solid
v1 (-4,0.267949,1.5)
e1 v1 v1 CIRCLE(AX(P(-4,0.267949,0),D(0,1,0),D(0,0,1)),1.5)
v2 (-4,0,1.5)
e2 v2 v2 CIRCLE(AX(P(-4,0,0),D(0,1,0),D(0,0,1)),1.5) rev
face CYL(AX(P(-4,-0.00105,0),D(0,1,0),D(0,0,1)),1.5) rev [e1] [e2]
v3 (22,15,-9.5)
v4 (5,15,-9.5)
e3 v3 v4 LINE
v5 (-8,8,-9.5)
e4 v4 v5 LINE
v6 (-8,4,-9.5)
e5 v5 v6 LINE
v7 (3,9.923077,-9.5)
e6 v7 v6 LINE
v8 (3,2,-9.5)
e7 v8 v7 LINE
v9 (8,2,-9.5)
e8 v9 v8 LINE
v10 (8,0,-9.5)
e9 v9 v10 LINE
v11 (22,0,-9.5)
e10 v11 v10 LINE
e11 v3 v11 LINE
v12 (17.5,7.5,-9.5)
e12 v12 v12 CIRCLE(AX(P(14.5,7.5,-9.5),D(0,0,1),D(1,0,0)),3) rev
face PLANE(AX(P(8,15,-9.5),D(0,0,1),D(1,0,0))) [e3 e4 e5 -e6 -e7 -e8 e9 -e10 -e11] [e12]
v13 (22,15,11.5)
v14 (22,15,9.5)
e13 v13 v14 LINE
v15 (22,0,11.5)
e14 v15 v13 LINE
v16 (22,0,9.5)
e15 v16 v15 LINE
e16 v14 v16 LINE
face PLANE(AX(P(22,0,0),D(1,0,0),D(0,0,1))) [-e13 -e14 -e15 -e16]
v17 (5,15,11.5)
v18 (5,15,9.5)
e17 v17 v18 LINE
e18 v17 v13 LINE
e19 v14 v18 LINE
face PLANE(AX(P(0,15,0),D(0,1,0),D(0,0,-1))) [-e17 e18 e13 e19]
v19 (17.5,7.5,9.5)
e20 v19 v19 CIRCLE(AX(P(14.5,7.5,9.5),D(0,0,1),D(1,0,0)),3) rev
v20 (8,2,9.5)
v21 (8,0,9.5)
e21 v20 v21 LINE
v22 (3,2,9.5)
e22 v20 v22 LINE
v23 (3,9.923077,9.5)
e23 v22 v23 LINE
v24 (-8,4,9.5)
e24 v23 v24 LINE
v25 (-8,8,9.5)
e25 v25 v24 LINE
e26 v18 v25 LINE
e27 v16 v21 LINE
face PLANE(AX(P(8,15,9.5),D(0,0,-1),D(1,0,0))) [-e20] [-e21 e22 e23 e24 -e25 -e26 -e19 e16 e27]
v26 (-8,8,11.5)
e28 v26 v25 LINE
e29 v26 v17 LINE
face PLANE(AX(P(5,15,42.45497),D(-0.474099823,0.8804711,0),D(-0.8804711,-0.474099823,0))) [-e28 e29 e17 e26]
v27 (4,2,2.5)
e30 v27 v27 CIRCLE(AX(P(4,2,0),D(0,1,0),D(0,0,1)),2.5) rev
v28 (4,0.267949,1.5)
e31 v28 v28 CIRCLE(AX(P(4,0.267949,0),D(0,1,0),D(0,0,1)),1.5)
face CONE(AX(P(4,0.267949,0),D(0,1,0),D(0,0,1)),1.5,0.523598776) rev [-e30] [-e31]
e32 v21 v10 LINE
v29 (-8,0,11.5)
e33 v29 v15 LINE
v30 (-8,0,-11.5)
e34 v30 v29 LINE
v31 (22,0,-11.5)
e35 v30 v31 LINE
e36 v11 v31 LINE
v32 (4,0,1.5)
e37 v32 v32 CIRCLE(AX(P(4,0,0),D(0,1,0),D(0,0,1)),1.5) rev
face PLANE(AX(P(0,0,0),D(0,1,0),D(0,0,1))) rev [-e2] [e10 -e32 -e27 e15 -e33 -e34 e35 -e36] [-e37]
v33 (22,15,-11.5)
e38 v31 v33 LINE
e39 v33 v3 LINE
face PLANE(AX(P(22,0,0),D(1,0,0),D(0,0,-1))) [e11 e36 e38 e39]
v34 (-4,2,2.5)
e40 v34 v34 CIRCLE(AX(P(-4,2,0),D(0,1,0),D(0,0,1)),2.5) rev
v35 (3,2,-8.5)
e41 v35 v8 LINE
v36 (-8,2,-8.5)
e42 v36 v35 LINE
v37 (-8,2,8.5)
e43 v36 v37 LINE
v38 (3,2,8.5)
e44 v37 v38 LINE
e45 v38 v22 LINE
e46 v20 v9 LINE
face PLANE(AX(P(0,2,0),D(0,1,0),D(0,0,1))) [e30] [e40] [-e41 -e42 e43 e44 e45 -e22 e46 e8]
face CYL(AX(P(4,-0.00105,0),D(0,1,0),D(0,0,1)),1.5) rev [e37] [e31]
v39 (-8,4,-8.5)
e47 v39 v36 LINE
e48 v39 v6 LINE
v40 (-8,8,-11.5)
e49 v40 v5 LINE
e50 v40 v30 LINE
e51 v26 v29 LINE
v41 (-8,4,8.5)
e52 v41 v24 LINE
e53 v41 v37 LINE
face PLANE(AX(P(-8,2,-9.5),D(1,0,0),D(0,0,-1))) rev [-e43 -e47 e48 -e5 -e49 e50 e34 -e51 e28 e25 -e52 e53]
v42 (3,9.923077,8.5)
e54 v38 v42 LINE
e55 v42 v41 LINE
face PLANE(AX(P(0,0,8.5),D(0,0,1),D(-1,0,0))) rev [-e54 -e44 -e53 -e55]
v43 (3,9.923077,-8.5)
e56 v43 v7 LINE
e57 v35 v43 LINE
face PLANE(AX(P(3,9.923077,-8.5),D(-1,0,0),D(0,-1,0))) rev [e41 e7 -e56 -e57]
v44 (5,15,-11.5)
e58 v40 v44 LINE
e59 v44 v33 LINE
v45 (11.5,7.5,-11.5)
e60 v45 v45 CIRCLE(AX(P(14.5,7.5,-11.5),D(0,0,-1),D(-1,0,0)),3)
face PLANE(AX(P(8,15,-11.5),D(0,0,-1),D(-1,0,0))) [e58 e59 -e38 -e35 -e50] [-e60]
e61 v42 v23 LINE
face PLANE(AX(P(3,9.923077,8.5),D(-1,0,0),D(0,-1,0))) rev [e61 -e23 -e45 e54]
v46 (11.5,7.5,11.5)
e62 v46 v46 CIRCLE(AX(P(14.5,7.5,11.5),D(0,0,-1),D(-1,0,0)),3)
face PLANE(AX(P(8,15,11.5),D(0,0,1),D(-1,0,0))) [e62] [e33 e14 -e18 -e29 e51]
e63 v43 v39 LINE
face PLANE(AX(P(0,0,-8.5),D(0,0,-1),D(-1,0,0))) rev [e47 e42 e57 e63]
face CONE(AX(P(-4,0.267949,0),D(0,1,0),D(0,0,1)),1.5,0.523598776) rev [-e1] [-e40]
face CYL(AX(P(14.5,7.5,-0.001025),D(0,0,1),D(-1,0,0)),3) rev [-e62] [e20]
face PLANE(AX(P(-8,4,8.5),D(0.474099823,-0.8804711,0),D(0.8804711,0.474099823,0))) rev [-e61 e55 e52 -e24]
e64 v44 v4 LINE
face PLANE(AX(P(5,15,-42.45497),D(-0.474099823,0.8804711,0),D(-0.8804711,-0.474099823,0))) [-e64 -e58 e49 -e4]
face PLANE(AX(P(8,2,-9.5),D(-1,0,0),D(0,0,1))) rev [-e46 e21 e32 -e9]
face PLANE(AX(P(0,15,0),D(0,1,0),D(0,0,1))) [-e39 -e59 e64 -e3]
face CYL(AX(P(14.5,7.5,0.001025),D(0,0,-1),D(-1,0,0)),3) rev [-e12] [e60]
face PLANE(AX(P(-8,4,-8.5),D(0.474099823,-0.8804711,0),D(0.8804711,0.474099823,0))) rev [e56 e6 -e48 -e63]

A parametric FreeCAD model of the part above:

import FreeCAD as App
import Part
import Sketcher
from FreeCAD import Vector
Q = App.Units.Quantity


def edges_at(feature, points):
    """Names of the edges that pass closest to the given points."""
    edges = feature.Shape.Edges
    near = lambda p: min(range(len(edges)), key=lambda i: edges[i].distToShape(Part.Vertex(*p))[0])
    return sorted({f"Edge{near(p) + 1}" for p in points})

doc = App.newDocument("Part")
body = doc.addObject("PartDesign::Body", "Body")

# Sketch on XZ plane
sketch1 = body.newObject("Sketcher::SketchObject", "Sketch")
sketch1.AttachmentSupport = (doc.getObject("XZ_Plane"), [""])
sketch1.MapMode = "FlatFace"
sketch1.addGeometry(Part.LineSegment(Vector(-8, -10, 0), Vector(-8, 0, 0)), False)
sketch1.addGeometry(Part.LineSegment(Vector(-8, 0, 0), Vector(8, 0, 0)), False)
sketch1.addGeometry(Part.LineSegment(Vector(8, 0, 0), Vector(8, -10, 0)), False)
sketch1.addGeometry(Part.LineSegment(Vector(8, -10, 0), Vector(-8, -10, 0)), False)
sketch1.addConstraint(Sketcher.Constraint("Coincident", 0, 2, 1, 1))
sketch1.addConstraint(Sketcher.Constraint("Coincident", 1, 2, 2, 1))
sketch1.addConstraint(Sketcher.Constraint("Coincident", 2, 2, 3, 1))
sketch1.addConstraint(Sketcher.Constraint("Coincident", 3, 2, 0, 1))
sketch1.addConstraint(Sketcher.Constraint("Vertical", 0))
sketch1.addConstraint(Sketcher.Constraint("Horizontal", 1))
sketch1.addConstraint(Sketcher.Constraint("Vertical", 2))
sketch1.addConstraint(Sketcher.Constraint("Horizontal", 3))
sketch1.addConstraint(Sketcher.Constraint("Symmetric", 0, 2, 1, 2, -1, 1))
sketch1.addConstraint(Sketcher.Constraint("DistanceX", 1, 1, 1, 2, Q("16 mm")))
sketch1.addConstraint(Sketcher.Constraint("DistanceY", 0, 1, 0, 2, Q("9.5 mm")))
pad1 = body.newObject("PartDesign::Pad", "Pad")
pad1.Profile = sketch1
pad1.Length = 2
pad1.Reversed = True

# Sketch on XZ plane
sketch2 = body.newObject("Sketcher::SketchObject", "Sketch001")
sketch2.AttachmentSupport = (doc.getObject("XZ_Plane"), [""])
sketch2.MapMode = "FlatFace"
sketch2.addGeometry(Part.LineSegment(Vector(-8, -9.5, 0), Vector(-8, -11.5, 0)), False)
sketch2.addGeometry(Part.LineSegment(Vector(-8, -11.5, 0), Vector(8, -11.5, 0)), False)
sketch2.addGeometry(Part.LineSegment(Vector(8, -11.5, 0), Vector(8, -9.5, 0)), False)
sketch2.addGeometry(Part.LineSegment(Vector(8, -9.5, 0), Vector(-8, -9.5, 0)), False)
sketch2.addConstraint(Sketcher.Constraint("Coincident", 0, 2, 1, 1))
sketch2.addConstraint(Sketcher.Constraint("Coincident", 1, 2, 2, 1))
sketch2.addConstraint(Sketcher.Constraint("Coincident", 2, 2, 3, 1))
sketch2.addConstraint(Sketcher.Constraint("Coincident", 3, 2, 0, 1))
sketch2.addConstraint(Sketcher.Constraint("Vertical", 0))
sketch2.addConstraint(Sketcher.Constraint("Horizontal", 1))
sketch2.addConstraint(Sketcher.Constraint("Vertical", 2))
sketch2.addConstraint(Sketcher.Constraint("Horizontal", 3))
sketch2.addConstraint(Sketcher.Constraint("DistanceX", 1, 1, 1, 2, Q("16 mm")))
sketch2.addConstraint(Sketcher.Constraint("DistanceY", 0, 2, 0, 1, Q("2 mm")))
sketch2.addConstraint(Sketcher.Constraint("DistanceX", 0, 2, -1, 1, Q("8 mm")))
sketch2.addConstraint(Sketcher.Constraint("DistanceY", 0, 2, -1, 1, Q("11.5 mm")))
pad2 = body.newObject("PartDesign::Pad", "Pad001")
pad2.Profile = sketch2
pad2.Length = 15
pad2.Reversed = True

# Sketch on XY plane
sketch3 = body.newObject("Sketcher::SketchObject", "Sketch002")
sketch3.AttachmentSupport = (doc.getObject("XY_Plane"), [""])
sketch3.MapMode = "FlatFace"
sketch3.AttachmentOffset = App.Placement(Vector(0, 0, -11.5), App.Rotation())
sketch3.addGeometry(Part.LineSegment(Vector(49, 39, 0), Vector(5, 15, 0)), False)
sketch3.addGeometry(Part.LineSegment(Vector(5, 15, 0), Vector(-8, 8, 0)), False)
sketch3.addGeometry(Part.LineSegment(Vector(-8, 8, 0), Vector(-52, -16, 0)), False)
sketch3.addGeometry(Part.LineSegment(Vector(-52, -16, 0), Vector(-99, 72, 0)), False)
sketch3.addGeometry(Part.LineSegment(Vector(-99, 72, 0), Vector(2, 126, 0)), False)
sketch3.addGeometry(Part.LineSegment(Vector(2, 126, 0), Vector(49, 39, 0)), False)
sketch3.addConstraint(Sketcher.Constraint("Coincident", 0, 2, 1, 1))
sketch3.addConstraint(Sketcher.Constraint("Coincident", 1, 2, 2, 1))
sketch3.addConstraint(Sketcher.Constraint("Coincident", 2, 2, 3, 1))
sketch3.addConstraint(Sketcher.Constraint("Coincident", 3, 2, 4, 1))
sketch3.addConstraint(Sketcher.Constraint("Coincident", 4, 2, 5, 1))
sketch3.addConstraint(Sketcher.Constraint("Coincident", 5, 2, 0, 1))
sketch3.addConstraint(Sketcher.Constraint("Parallel", 0, 1))
sketch3.addConstraint(Sketcher.Constraint("Parallel", 1, 2))
sketch3.addConstraint(Sketcher.Constraint("Perpendicular", 2, 3))
sketch3.addConstraint(Sketcher.Constraint("Perpendicular", 3, 4))
sketch3.addConstraint(Sketcher.Constraint("Perpendicular", 4, 5))
sketch3.addConstraint(Sketcher.Constraint("Equal", 0, 2))
sketch3.addConstraint(Sketcher.Constraint("DistanceX", -1, 1, 0, 2, Q("5 mm")))
sketch3.addConstraint(Sketcher.Constraint("DistanceY", -1, 1, 0, 2, Q("15 mm")))
sketch3.addConstraint(Sketcher.Constraint("DistanceX", 1, 2, -1, 1, Q("8 mm")))
sketch3.addConstraint(Sketcher.Constraint("DistanceY", -1, 1, 1, 2, Q("8 mm")))
sketch3.addConstraint(Sketcher.Constraint("DistanceX", -1, 1, 4, 2, Q("1.633968 mm")))
sketch3.addConstraint(Sketcher.Constraint("DistanceY", 2, 2, 3, 2, Q("87.516831 mm")))
pocket1 = body.newObject("PartDesign::Pocket", "Pocket")
pocket1.Profile = sketch3
pocket1.Type = "ThroughAll"
pocket1.Midplane = True

# Sketch on YZ plane
sketch4 = body.newObject("Sketcher::SketchObject", "Sketch003")
sketch4.AttachmentSupport = (doc.getObject("YZ_Plane"), [""])
sketch4.MapMode = "FlatFace"
sketch4.AttachmentOffset = App.Placement(Vector(0, 0, 8), App.Rotation())
sketch4.addGeometry(Part.LineSegment(Vector(15, -9.5, 0), Vector(0, -9.5, 0)), False)
sketch4.addGeometry(Part.LineSegment(Vector(0, -9.5, 0), Vector(0, -11.5, 0)), False)
sketch4.addGeometry(Part.LineSegment(Vector(0, -11.5, 0), Vector(15, -11.5, 0)), False)
sketch4.addGeometry(Part.LineSegment(Vector(15, -11.5, 0), Vector(15, -9.5, 0)), False)
sketch4.addConstraint(Sketcher.Constraint("Coincident", 0, 2, 1, 1))
sketch4.addConstraint(Sketcher.Constraint("Coincident", 1, 2, 2, 1))
sketch4.addConstraint(Sketcher.Constraint("Coincident", 2, 2, 3, 1))
sketch4.addConstraint(Sketcher.Constraint("Coincident", 3, 2, 0, 1))
sketch4.addConstraint(Sketcher.Constraint("Horizontal", 0))
sketch4.addConstraint(Sketcher.Constraint("Vertical", 1))
sketch4.addConstraint(Sketcher.Constraint("Horizontal", 2))
sketch4.addConstraint(Sketcher.Constraint("Vertical", 3))
sketch4.addConstraint(Sketcher.Constraint("PointOnObject", 0, 2, -2))
sketch4.addConstraint(Sketcher.Constraint("DistanceX", 0, 2, 0, 1, Q("15 mm")))
sketch4.addConstraint(Sketcher.Constraint("DistanceY", 1, 2, 1, 1, Q("2 mm")))
sketch4.addConstraint(Sketcher.Constraint("DistanceY", 0, 2, -1, 1, Q("9.5 mm")))
pad3 = body.newObject("PartDesign::Pad", "Pad002")
pad3.Profile = sketch4
pad3.Length = 14

# Sketch on XY plane
sketch5 = body.newObject("Sketcher::SketchObject", "Sketch004")
sketch5.AttachmentSupport = (doc.getObject("XY_Plane"), [""])
sketch5.MapMode = "FlatFace"
sketch5.AttachmentOffset = App.Placement(Vector(0, 0, -9.5), App.Rotation())
sketch5.addGeometry(Part.LineSegment(Vector(-8, 4, 0), Vector(-8, 2, 0)), False)
sketch5.addGeometry(Part.LineSegment(Vector(-8, 2, 0), Vector(3, 2, 0)), False)
sketch5.addGeometry(Part.LineSegment(Vector(3, 2, 0), Vector(3, 9.9, 0)), False)
sketch5.addGeometry(Part.LineSegment(Vector(3, 9.9, 0), Vector(-8, 4, 0)), False)
sketch5.addConstraint(Sketcher.Constraint("Coincident", 0, 2, 1, 1))
sketch5.addConstraint(Sketcher.Constraint("Coincident", 1, 2, 2, 1))
sketch5.addConstraint(Sketcher.Constraint("Coincident", 2, 2, 3, 1))
sketch5.addConstraint(Sketcher.Constraint("Coincident", 3, 2, 0, 1))
sketch5.addConstraint(Sketcher.Constraint("Vertical", 0))
sketch5.addConstraint(Sketcher.Constraint("Horizontal", 1))
sketch5.addConstraint(Sketcher.Constraint("Vertical", 2))
sketch5.addConstraint(Sketcher.Constraint("DistanceX", 1, 1, 1, 2, Q("11 mm")))
sketch5.addConstraint(Sketcher.Constraint("DistanceY", 0, 2, 0, 1, Q("2 mm")))
sketch5.addConstraint(Sketcher.Constraint("DistanceX", 0, 2, -1, 1, Q("8 mm")))
sketch5.addConstraint(Sketcher.Constraint("DistanceY", -1, 1, 0, 2, Q("2 mm")))
sketch5.addConstraint(Sketcher.Constraint("Distance", 3, Q("12.493312 mm")))
pad4 = body.newObject("PartDesign::Pad", "Pad003")
pad4.Profile = sketch5
pad4.Length = 1

# Sketch on XY plane
sketch6 = body.newObject("Sketcher::SketchObject", "Sketch005")
sketch6.AttachmentSupport = (doc.getObject("XY_Plane"), [""])
sketch6.MapMode = "FlatFace"
sketch6.AttachmentOffset = App.Placement(Vector(0, 0, -11.5), App.Rotation())
sketch6.addGeometry(Part.Circle(Vector(14.5, 7.5, 0), Vector(0, 0, 1), 3), False)
sketch6.addConstraint(Sketcher.Constraint("Diameter", 0, Q("6 mm")))
sketch6.addConstraint(Sketcher.Constraint("DistanceX", -1, 1, 0, 3, Q("14.5 mm")))
sketch6.addConstraint(Sketcher.Constraint("DistanceY", -1, 1, 0, 3, Q("7.5 mm")))
pocket2 = body.newObject("PartDesign::Pocket", "Pocket001")
pocket2.Profile = sketch6
pocket2.Type = "UpToFirst"
pocket2.Reversed = True
body2 = doc.addObject("PartDesign::Body", "Body001")
doc.recompute()

body2.BaseFeature = body
doc.recompute()

mirroring = doc.addObject("Part::Mirroring", "Mirroring")
mirroring.Source = body
mirroring.Base = Vector(-8, 2, 0)
mirroring.Normal = Vector(0, 0, -1)
body3 = doc.addObject("PartDesign::Body", "Body002")
body3.BaseFeature = mirroring
boolean = body2.newObject("PartDesign::Boolean", "Boolean")
boolean.Type = "Fuse"
boolean.addObjects([body3])
doc.recompute()

# Sketch on XZ plane
sketch7 = body2.newObject("Sketcher::SketchObject", "Sketch006")
sketch7.AttachmentSupport = (doc.getObject("XZ_Plane001"), [""])
sketch7.MapMode = "FlatFace"
sketch7.AttachmentOffset = App.Placement(Vector(0, 0, -2), App.Rotation())
sketch7.addGeometry(Part.Circle(Vector(-4, 0, 0), Vector(0, 0, 1), 1.5), False)
sketch7.addConstraint(Sketcher.Constraint("PointOnObject", 0, 3, -1))
sketch7.addConstraint(Sketcher.Constraint("Diameter", 0, Q("3 mm")))
sketch7.addConstraint(Sketcher.Constraint("DistanceX", 0, 3, -1, 1, Q("4 mm")))
pocket3 = body2.newObject("PartDesign::Pocket", "Pocket002")
pocket3.Profile = sketch7
pocket3.Type = "UpToFirst"
pocket3.Reversed = True

# Sketch on XZ plane
sketch8 = body2.newObject("Sketcher::SketchObject", "Sketch007")
sketch8.AttachmentSupport = (doc.getObject("XZ_Plane001"), [""])
sketch8.MapMode = "FlatFace"
sketch8.AttachmentOffset = App.Placement(Vector(0, 0, -2), App.Rotation())
sketch8.addGeometry(Part.Circle(Vector(4, 0, 0), Vector(0, 0, 1), 1.5), False)
sketch8.addConstraint(Sketcher.Constraint("PointOnObject", 0, 3, -1))
sketch8.addConstraint(Sketcher.Constraint("Diameter", 0, Q("3 mm")))
sketch8.addConstraint(Sketcher.Constraint("DistanceX", -1, 1, 0, 3, Q("4 mm")))
pocket4 = body2.newObject("PartDesign::Pocket", "Pocket003")
pocket4.Profile = sketch8
pocket4.Type = "UpToFirst"
pocket4.Reversed = True
doc.recompute()

chamfer = body2.newObject("PartDesign::Chamfer", "Chamfer")
chamfer.Base = (pocket4, edges_at(pocket4, [(-5.5, 2, 0), (2.5, 2, 0)]))
chamfer.ChamferType = "Two distances"
chamfer.Size = 1
chamfer.Size2 = 1.732051
mirroring.Visibility = False

doc.recompute()
